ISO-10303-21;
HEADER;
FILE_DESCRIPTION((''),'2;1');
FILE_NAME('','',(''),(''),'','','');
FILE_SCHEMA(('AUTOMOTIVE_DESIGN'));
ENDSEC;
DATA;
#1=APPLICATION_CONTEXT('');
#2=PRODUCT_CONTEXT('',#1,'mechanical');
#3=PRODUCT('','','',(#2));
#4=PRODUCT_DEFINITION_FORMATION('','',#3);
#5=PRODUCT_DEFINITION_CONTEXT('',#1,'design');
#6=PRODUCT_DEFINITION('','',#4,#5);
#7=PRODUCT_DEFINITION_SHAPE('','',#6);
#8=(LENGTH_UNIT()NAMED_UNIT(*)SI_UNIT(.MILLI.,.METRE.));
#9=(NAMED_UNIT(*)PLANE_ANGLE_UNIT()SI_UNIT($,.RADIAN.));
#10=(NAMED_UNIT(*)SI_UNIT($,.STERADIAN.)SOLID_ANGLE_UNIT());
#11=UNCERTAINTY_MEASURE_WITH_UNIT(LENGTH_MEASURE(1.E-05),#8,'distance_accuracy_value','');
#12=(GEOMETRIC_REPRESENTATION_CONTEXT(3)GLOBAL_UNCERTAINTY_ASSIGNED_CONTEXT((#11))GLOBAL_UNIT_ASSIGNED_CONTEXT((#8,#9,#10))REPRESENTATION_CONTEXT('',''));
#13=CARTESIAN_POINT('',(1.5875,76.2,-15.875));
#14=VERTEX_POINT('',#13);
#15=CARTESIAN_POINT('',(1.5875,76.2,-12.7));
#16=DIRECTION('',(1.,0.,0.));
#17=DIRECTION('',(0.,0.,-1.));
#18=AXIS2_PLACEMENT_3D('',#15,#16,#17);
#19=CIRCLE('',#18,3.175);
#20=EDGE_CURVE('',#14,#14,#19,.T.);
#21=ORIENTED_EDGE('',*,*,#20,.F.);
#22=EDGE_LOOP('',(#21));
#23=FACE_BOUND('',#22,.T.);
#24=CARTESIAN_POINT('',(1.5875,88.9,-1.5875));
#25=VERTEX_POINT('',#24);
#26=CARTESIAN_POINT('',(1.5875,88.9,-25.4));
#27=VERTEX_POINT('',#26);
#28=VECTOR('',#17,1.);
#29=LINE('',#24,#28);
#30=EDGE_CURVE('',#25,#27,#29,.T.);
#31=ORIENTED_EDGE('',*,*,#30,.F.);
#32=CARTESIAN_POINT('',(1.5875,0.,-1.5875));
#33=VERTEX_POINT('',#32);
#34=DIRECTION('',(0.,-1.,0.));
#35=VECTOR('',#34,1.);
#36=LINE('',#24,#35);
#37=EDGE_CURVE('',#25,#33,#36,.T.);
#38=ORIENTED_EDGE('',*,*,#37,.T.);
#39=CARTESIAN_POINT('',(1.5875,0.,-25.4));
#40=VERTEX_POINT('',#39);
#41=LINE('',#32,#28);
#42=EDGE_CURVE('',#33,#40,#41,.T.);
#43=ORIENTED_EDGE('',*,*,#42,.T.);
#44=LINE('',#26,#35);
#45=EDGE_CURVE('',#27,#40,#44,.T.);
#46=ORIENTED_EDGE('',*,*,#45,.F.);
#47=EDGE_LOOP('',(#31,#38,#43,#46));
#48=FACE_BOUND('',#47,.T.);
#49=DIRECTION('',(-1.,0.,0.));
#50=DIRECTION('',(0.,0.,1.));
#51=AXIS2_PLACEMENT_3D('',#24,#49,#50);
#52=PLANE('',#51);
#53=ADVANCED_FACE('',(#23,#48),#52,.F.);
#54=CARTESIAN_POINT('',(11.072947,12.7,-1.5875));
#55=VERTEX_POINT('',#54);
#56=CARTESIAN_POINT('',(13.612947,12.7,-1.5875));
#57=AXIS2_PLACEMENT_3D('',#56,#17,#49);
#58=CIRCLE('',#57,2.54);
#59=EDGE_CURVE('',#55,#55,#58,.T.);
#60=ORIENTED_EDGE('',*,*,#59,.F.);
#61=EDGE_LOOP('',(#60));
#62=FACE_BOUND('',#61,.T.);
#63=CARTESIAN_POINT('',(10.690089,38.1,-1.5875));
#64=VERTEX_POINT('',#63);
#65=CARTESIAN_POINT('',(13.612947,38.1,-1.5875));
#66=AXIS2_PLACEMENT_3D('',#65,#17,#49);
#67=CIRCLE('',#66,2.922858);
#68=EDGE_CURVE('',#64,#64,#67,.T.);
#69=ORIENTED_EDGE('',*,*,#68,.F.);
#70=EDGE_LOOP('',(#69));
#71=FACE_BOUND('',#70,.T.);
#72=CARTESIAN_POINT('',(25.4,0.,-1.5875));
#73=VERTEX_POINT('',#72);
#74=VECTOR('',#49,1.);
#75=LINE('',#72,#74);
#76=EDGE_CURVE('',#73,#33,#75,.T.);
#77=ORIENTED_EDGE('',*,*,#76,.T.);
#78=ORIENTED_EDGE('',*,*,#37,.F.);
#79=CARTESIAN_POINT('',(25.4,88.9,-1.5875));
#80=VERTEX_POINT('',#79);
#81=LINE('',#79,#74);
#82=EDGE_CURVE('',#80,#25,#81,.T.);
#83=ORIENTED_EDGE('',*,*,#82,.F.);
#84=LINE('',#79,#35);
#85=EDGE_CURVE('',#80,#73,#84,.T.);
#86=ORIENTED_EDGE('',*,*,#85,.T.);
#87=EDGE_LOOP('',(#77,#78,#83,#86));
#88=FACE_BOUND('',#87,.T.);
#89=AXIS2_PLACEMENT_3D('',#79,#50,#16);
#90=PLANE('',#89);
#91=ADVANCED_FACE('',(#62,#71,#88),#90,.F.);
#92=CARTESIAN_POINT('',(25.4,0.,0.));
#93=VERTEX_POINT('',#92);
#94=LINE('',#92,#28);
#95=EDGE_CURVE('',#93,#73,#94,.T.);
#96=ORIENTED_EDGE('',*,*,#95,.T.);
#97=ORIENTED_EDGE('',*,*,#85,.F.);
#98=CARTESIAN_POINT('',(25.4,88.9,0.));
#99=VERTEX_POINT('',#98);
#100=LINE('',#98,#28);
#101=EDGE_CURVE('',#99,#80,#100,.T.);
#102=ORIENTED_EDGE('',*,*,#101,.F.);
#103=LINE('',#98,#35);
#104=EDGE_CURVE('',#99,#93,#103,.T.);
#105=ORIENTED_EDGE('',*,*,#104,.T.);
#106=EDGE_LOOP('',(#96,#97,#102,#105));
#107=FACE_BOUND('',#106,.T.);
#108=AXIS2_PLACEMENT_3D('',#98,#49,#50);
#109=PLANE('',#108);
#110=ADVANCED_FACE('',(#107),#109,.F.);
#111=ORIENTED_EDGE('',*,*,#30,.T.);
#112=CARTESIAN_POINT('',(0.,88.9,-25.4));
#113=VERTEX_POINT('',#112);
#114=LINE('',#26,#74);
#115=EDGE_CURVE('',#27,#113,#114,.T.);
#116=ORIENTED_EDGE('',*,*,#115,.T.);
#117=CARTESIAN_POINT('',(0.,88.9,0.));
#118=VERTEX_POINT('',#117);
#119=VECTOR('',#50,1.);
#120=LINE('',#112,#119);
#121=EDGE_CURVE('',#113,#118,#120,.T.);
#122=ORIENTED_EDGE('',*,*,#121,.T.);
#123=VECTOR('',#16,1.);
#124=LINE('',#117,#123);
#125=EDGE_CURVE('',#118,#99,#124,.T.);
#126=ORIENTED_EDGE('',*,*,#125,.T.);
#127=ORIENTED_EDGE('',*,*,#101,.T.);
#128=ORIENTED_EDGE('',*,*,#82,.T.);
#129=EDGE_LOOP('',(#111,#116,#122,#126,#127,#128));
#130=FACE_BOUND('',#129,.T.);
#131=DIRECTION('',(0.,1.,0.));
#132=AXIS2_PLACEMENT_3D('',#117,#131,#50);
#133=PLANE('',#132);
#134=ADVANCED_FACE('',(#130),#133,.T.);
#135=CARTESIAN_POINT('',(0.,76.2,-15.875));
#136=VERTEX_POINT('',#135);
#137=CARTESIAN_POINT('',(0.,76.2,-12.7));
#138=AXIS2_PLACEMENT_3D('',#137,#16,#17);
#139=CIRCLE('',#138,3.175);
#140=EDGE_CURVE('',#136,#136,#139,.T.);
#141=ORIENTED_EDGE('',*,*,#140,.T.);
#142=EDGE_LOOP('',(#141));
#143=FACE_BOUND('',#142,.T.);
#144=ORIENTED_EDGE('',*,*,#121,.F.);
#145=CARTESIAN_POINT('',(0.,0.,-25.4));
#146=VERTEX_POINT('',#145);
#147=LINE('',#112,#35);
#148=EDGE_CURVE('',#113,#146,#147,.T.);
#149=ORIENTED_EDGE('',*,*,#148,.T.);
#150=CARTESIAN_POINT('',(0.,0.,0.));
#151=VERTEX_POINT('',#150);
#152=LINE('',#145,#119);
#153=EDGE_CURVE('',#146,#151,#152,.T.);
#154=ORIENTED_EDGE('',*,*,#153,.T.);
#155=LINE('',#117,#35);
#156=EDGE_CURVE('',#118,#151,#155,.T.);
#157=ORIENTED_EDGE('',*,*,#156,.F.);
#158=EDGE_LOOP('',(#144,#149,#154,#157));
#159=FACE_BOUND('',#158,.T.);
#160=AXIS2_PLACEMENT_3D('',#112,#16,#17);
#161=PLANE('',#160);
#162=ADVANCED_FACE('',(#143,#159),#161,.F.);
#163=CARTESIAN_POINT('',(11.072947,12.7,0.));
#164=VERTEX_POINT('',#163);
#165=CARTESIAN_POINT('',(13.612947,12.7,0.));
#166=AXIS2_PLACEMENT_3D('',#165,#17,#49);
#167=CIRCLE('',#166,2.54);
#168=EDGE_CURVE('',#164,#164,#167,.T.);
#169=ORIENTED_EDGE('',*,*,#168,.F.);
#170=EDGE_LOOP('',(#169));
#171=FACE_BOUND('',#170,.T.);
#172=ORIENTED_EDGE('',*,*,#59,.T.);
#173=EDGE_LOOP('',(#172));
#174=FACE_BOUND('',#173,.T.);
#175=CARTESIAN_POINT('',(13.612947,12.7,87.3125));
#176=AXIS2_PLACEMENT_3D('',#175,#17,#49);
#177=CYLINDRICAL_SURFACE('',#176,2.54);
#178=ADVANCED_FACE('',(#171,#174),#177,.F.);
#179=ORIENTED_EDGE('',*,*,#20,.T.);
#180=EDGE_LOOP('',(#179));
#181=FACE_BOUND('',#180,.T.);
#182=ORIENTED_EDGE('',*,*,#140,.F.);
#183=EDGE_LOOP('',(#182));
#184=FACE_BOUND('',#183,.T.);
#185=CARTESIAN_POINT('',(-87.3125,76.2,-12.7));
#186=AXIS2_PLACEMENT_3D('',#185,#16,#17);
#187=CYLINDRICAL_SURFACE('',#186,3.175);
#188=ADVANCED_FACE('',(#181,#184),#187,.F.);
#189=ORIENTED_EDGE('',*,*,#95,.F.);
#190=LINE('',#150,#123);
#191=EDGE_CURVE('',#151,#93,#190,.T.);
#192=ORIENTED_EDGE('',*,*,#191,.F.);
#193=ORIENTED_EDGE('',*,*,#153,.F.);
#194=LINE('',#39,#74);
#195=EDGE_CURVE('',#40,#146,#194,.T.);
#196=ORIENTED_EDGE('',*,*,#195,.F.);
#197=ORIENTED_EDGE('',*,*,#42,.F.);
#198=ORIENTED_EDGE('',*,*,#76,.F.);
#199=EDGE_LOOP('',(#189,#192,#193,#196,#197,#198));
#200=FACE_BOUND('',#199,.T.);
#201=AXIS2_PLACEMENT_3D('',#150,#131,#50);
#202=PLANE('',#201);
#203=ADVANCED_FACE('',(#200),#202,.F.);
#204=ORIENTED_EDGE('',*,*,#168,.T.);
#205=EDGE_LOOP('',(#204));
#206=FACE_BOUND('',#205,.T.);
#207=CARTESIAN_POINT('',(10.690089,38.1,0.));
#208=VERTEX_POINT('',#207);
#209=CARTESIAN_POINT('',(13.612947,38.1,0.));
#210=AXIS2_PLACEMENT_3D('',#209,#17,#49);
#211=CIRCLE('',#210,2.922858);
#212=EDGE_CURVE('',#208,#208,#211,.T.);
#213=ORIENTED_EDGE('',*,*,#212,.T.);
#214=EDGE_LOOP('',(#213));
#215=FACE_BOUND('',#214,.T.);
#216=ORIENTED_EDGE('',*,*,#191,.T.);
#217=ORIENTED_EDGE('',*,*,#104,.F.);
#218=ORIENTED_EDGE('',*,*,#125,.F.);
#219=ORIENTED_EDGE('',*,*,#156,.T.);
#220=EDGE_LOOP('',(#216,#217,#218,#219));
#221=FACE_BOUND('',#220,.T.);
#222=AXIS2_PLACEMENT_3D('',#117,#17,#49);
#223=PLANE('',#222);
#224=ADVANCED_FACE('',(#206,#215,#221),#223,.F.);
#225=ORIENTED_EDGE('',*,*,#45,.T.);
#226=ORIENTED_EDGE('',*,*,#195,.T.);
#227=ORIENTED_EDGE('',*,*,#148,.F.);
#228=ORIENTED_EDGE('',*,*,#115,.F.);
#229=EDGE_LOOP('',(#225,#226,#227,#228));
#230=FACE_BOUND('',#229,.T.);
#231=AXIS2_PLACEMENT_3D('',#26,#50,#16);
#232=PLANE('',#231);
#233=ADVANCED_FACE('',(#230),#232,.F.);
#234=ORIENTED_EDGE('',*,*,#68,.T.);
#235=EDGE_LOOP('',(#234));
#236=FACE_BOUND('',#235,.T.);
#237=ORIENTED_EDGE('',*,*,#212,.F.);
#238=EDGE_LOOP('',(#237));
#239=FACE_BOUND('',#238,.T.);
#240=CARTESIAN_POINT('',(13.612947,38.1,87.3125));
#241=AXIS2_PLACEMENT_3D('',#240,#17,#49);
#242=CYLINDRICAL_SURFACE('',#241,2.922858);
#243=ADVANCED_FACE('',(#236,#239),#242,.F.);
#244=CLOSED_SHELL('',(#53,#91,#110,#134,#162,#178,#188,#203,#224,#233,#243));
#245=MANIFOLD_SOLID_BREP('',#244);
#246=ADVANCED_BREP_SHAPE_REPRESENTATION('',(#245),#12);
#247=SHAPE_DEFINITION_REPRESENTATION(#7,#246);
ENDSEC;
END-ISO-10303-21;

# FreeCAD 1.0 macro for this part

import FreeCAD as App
import Part
import Sketcher

V = App.Vector
Q = App.Units.Quantity

doc = App.newDocument("Part")
body = doc.addObject("PartDesign::Body", "Body")

# Sketch on XZ plane
sketch1 = body.newObject("Sketcher::SketchObject", "Sketch")
sketch1.AttachmentSupport = (doc.getObject("XZ_Plane"), [""])
sketch1.MapMode = "FlatFace"
sketch1.addGeometry(Part.LineSegment(V(0, -25.4, 0), V(0, 0, 0)), False)
sketch1.addGeometry(Part.LineSegment(V(0, 0, 0), V(25.4, 0, 0)), False)
sketch1.addGeometry(Part.LineSegment(V(25.4, 0, 0), V(25.4, -1.6, 0)), False)
sketch1.addGeometry(Part.LineSegment(V(25.4, -1.6, 0), V(1.6, -1.6, 0)), False)
sketch1.addGeometry(Part.LineSegment(V(1.6, -1.6, 0), V(1.6, -25.4, 0)), False)
sketch1.addGeometry(Part.LineSegment(V(1.6, -25.4, 0), V(0, -25.4, 0)), False)
sketch1.addConstraint(Sketcher.Constraint("Coincident", 0, 2, 1, 1))
sketch1.addConstraint(Sketcher.Constraint("Coincident", 1, 2, 2, 1))
sketch1.addConstraint(Sketcher.Constraint("Coincident", 2, 2, 3, 1))
sketch1.addConstraint(Sketcher.Constraint("Coincident", 3, 2, 4, 1))
sketch1.addConstraint(Sketcher.Constraint("Coincident", 4, 2, 5, 1))
sketch1.addConstraint(Sketcher.Constraint("Coincident", 5, 2, 0, 1))
sketch1.addConstraint(Sketcher.Constraint("Vertical", 0))
sketch1.addConstraint(Sketcher.Constraint("Horizontal", 1))
sketch1.addConstraint(Sketcher.Constraint("Vertical", 2))
sketch1.addConstraint(Sketcher.Constraint("Horizontal", 3))
sketch1.addConstraint(Sketcher.Constraint("Vertical", 4))
sketch1.addConstraint(Sketcher.Constraint("Horizontal", 5))
sketch1.addConstraint(Sketcher.Constraint("Coincident", 0, 2, -1, 1))
sketch1.addConstraint(Sketcher.Constraint("Equal", 1, 0))
sketch1.addConstraint(Sketcher.Constraint("Equal", 5, 2))
sketch1.addConstraint(Sketcher.Constraint("DistanceX", 1, 1, 1, 2, Q("1 in")))
sketch1.addConstraint(Sketcher.Constraint("DistanceX", 3, 2, 3, 1, Q("0.9375 in")))
pad1 = body.newObject("PartDesign::Pad", "Pad")
pad1.Profile = sketch1
pad1.Length = Q("3.5 in")
pad1.Reversed = True

# Sketch on XY plane
sketch2 = body.newObject("Sketcher::SketchObject", "Sketch001")
sketch2.AttachmentSupport = (doc.getObject("XY_Plane"), [""])
sketch2.MapMode = "FlatFace"
sketch2.AttachmentOffset = App.Placement(V(0, 0, -0.0625 * 25.4), App.Rotation())
sketch2.addGeometry(Part.Circle(V(13.6, 12.7, 0), V(0, 0, 1), 2.5), False)
sketch2.addGeometry(Part.Circle(V(13.6, 38.1, 0), V(0, 0, 1), 2.9), False)
sketch2.addConstraint(Sketcher.Constraint("Vertical", 0, 3, 1, 3))
sketch2.addConstraint(Sketcher.Constraint("Diameter", 0, Q("0.2 in")))
sketch2.addConstraint(Sketcher.Constraint("DistanceY", 0, 3, 1, 3, Q("1 in")))
sketch2.addConstraint(Sketcher.Constraint("DistanceY", -1, 1, 0, 3, Q("0.5 in")))
sketch2.addConstraint(Sketcher.Constraint("Diameter", 1, Q("5.845716 mm")))
sketch2.addConstraint(Sketcher.Constraint("DistanceX", -1, 1, 0, 3, Q("13.612947 mm")))
pocket1 = body.newObject("PartDesign::Pocket", "Pocket")
pocket1.Profile = sketch2
pocket1.Length = Q("3.5 in")
pocket1.Reversed = True

# Sketch on YZ plane
sketch3 = body.newObject("Sketcher::SketchObject", "Sketch002")
sketch3.AttachmentSupport = (doc.getObject("YZ_Plane"), [""])
sketch3.MapMode = "FlatFace"
sketch3.AttachmentOffset = App.Placement(V(0, 0, 0.0625 * 25.4), App.Rotation())
sketch3.addGeometry(Part.Circle(V(76.2, -12.7, 0), V(0, 0, 1), 3.2), False)
sketch3.addConstraint(Sketcher.Constraint("Diameter", 0, Q("0.25 in")))
sketch3.addConstraint(Sketcher.Constraint("DistanceX", -1, 1, 0, 3, Q("3 in")))
sketch3.addConstraint(Sketcher.Constraint("DistanceY", 0, 3, -1, 1, Q("0.5 in")))
pocket2 = body.newObject("PartDesign::Pocket", "Pocket001")
pocket2.Profile = sketch3
pocket2.Length = Q("3.5 in")

doc.recompute()
